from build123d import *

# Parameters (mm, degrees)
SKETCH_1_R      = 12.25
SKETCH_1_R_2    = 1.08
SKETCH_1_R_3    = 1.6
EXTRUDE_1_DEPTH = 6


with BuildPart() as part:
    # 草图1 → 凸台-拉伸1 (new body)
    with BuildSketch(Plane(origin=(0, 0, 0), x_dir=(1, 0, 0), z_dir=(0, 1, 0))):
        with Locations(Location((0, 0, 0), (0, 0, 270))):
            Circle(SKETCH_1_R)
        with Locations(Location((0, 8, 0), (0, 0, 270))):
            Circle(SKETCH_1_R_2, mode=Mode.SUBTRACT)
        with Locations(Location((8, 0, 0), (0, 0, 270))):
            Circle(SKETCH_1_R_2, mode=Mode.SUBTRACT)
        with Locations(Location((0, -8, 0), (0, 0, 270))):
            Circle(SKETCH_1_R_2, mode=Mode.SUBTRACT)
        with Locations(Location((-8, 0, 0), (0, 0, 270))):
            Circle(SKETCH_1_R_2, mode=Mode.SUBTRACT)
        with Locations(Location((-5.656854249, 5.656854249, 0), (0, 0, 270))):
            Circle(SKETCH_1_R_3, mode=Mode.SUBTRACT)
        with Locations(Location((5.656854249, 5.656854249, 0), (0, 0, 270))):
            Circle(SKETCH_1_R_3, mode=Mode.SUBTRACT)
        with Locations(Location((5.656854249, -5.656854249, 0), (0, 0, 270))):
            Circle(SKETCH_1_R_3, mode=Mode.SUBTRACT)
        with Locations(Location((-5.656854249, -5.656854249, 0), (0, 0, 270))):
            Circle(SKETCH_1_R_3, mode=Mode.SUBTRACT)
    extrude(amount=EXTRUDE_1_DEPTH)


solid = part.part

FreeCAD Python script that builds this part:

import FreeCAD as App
import Part
import Sketcher
from FreeCAD import Vector
Q = App.Units.Quantity

doc = App.newDocument("Part")
body = doc.addObject("PartDesign::Body", "Body")

# Sketch on XZ plane
sketch1 = body.newObject("Sketcher::SketchObject", "Sketch")
sketch1.AttachmentSupport = (doc.getObject("XZ_Plane"), [""])
sketch1.MapMode = "FlatFace"
sketch1.addGeometry([
    Part.Circle(Vector(0, 0, 0), Vector(0, 0, 1), 12.2),  # 0
    Part.Circle(Vector(-5.7, -5.7, 0), Vector(0, 0, 1), 1.6),  # 1
    Part.Circle(Vector(0, -8, 0), Vector(0, 0, 1), 1.1),  # 2
    Part.Circle(Vector(-8, 0, 0), Vector(0, 0, 1), 1.1),  # 3
    Part.Circle(Vector(-5.7, 5.7, 0), Vector(0, 0, 1), 1.6),  # 4
    Part.Circle(Vector(5.7, -5.7, 0), Vector(0, 0, 1), 1.6),  # 5
    Part.Circle(Vector(8, 0, 0), Vector(0, 0, 1), 1.1),  # 6
    Part.Circle(Vector(0, 8, 0), Vector(0, 0, 1), 1.1),  # 7
    Part.Circle(Vector(5.7, 5.7, 0), Vector(0, 0, 1), 1.6),  # 8
], False)
sketch1.addConstraint([
    Sketcher.Constraint("Coincident", 0, 3, -1, 1),
    Sketcher.Constraint("Equal", 2, 3),
    Sketcher.Constraint("Equal", 1, 4),
    Sketcher.Constraint("Equal", 4, 5),
    Sketcher.Constraint("Equal", 3, 6),
    Sketcher.Constraint("Equal", 6, 7),
    Sketcher.Constraint("Equal", 5, 8),
    Sketcher.Constraint("Symmetric", 4, 3, 5, 3, -1, 1),
    Sketcher.Constraint("Symmetric", 3, 3, 6, 3, -1, 1),
    Sketcher.Constraint("Symmetric", 2, 3, 7, 3, -1, 1),
    Sketcher.Constraint("Symmetric", 1, 3, 8, 3, -1, 1),
    Sketcher.Constraint("Symmetric", 1, 3, 5, 3, -2),
    Sketcher.Constraint("PointOnObject", 2, 3, -2),
    Sketcher.Constraint("PointOnObject", 3, 3, -1),
    Sketcher.Constraint("Diameter", 0, Q("24.5 mm")),
    Sketcher.Constraint("Diameter", 1, Q("3.2 mm")),
    Sketcher.Constraint("Diameter", 2, Q("2.16 mm")),
    Sketcher.Constraint("DistanceY", 2, 3, -1, 1, Q("8 mm")),
    Sketcher.Constraint("DistanceX", 3, 3, -1, 1, Q("8 mm")),
    Sketcher.Constraint("DistanceY", 1, 3, 4, 3, Q("11.313708 mm")),
    Sketcher.Constraint("DistanceX", 1, 3, 5, 3, Q("11.313708 mm")),
])
pad1 = body.newObject("PartDesign::Pad", "Pad")
pad1.Profile = sketch1
pad1.Length = 6
pad1.Reversed = True

doc.recompute()
